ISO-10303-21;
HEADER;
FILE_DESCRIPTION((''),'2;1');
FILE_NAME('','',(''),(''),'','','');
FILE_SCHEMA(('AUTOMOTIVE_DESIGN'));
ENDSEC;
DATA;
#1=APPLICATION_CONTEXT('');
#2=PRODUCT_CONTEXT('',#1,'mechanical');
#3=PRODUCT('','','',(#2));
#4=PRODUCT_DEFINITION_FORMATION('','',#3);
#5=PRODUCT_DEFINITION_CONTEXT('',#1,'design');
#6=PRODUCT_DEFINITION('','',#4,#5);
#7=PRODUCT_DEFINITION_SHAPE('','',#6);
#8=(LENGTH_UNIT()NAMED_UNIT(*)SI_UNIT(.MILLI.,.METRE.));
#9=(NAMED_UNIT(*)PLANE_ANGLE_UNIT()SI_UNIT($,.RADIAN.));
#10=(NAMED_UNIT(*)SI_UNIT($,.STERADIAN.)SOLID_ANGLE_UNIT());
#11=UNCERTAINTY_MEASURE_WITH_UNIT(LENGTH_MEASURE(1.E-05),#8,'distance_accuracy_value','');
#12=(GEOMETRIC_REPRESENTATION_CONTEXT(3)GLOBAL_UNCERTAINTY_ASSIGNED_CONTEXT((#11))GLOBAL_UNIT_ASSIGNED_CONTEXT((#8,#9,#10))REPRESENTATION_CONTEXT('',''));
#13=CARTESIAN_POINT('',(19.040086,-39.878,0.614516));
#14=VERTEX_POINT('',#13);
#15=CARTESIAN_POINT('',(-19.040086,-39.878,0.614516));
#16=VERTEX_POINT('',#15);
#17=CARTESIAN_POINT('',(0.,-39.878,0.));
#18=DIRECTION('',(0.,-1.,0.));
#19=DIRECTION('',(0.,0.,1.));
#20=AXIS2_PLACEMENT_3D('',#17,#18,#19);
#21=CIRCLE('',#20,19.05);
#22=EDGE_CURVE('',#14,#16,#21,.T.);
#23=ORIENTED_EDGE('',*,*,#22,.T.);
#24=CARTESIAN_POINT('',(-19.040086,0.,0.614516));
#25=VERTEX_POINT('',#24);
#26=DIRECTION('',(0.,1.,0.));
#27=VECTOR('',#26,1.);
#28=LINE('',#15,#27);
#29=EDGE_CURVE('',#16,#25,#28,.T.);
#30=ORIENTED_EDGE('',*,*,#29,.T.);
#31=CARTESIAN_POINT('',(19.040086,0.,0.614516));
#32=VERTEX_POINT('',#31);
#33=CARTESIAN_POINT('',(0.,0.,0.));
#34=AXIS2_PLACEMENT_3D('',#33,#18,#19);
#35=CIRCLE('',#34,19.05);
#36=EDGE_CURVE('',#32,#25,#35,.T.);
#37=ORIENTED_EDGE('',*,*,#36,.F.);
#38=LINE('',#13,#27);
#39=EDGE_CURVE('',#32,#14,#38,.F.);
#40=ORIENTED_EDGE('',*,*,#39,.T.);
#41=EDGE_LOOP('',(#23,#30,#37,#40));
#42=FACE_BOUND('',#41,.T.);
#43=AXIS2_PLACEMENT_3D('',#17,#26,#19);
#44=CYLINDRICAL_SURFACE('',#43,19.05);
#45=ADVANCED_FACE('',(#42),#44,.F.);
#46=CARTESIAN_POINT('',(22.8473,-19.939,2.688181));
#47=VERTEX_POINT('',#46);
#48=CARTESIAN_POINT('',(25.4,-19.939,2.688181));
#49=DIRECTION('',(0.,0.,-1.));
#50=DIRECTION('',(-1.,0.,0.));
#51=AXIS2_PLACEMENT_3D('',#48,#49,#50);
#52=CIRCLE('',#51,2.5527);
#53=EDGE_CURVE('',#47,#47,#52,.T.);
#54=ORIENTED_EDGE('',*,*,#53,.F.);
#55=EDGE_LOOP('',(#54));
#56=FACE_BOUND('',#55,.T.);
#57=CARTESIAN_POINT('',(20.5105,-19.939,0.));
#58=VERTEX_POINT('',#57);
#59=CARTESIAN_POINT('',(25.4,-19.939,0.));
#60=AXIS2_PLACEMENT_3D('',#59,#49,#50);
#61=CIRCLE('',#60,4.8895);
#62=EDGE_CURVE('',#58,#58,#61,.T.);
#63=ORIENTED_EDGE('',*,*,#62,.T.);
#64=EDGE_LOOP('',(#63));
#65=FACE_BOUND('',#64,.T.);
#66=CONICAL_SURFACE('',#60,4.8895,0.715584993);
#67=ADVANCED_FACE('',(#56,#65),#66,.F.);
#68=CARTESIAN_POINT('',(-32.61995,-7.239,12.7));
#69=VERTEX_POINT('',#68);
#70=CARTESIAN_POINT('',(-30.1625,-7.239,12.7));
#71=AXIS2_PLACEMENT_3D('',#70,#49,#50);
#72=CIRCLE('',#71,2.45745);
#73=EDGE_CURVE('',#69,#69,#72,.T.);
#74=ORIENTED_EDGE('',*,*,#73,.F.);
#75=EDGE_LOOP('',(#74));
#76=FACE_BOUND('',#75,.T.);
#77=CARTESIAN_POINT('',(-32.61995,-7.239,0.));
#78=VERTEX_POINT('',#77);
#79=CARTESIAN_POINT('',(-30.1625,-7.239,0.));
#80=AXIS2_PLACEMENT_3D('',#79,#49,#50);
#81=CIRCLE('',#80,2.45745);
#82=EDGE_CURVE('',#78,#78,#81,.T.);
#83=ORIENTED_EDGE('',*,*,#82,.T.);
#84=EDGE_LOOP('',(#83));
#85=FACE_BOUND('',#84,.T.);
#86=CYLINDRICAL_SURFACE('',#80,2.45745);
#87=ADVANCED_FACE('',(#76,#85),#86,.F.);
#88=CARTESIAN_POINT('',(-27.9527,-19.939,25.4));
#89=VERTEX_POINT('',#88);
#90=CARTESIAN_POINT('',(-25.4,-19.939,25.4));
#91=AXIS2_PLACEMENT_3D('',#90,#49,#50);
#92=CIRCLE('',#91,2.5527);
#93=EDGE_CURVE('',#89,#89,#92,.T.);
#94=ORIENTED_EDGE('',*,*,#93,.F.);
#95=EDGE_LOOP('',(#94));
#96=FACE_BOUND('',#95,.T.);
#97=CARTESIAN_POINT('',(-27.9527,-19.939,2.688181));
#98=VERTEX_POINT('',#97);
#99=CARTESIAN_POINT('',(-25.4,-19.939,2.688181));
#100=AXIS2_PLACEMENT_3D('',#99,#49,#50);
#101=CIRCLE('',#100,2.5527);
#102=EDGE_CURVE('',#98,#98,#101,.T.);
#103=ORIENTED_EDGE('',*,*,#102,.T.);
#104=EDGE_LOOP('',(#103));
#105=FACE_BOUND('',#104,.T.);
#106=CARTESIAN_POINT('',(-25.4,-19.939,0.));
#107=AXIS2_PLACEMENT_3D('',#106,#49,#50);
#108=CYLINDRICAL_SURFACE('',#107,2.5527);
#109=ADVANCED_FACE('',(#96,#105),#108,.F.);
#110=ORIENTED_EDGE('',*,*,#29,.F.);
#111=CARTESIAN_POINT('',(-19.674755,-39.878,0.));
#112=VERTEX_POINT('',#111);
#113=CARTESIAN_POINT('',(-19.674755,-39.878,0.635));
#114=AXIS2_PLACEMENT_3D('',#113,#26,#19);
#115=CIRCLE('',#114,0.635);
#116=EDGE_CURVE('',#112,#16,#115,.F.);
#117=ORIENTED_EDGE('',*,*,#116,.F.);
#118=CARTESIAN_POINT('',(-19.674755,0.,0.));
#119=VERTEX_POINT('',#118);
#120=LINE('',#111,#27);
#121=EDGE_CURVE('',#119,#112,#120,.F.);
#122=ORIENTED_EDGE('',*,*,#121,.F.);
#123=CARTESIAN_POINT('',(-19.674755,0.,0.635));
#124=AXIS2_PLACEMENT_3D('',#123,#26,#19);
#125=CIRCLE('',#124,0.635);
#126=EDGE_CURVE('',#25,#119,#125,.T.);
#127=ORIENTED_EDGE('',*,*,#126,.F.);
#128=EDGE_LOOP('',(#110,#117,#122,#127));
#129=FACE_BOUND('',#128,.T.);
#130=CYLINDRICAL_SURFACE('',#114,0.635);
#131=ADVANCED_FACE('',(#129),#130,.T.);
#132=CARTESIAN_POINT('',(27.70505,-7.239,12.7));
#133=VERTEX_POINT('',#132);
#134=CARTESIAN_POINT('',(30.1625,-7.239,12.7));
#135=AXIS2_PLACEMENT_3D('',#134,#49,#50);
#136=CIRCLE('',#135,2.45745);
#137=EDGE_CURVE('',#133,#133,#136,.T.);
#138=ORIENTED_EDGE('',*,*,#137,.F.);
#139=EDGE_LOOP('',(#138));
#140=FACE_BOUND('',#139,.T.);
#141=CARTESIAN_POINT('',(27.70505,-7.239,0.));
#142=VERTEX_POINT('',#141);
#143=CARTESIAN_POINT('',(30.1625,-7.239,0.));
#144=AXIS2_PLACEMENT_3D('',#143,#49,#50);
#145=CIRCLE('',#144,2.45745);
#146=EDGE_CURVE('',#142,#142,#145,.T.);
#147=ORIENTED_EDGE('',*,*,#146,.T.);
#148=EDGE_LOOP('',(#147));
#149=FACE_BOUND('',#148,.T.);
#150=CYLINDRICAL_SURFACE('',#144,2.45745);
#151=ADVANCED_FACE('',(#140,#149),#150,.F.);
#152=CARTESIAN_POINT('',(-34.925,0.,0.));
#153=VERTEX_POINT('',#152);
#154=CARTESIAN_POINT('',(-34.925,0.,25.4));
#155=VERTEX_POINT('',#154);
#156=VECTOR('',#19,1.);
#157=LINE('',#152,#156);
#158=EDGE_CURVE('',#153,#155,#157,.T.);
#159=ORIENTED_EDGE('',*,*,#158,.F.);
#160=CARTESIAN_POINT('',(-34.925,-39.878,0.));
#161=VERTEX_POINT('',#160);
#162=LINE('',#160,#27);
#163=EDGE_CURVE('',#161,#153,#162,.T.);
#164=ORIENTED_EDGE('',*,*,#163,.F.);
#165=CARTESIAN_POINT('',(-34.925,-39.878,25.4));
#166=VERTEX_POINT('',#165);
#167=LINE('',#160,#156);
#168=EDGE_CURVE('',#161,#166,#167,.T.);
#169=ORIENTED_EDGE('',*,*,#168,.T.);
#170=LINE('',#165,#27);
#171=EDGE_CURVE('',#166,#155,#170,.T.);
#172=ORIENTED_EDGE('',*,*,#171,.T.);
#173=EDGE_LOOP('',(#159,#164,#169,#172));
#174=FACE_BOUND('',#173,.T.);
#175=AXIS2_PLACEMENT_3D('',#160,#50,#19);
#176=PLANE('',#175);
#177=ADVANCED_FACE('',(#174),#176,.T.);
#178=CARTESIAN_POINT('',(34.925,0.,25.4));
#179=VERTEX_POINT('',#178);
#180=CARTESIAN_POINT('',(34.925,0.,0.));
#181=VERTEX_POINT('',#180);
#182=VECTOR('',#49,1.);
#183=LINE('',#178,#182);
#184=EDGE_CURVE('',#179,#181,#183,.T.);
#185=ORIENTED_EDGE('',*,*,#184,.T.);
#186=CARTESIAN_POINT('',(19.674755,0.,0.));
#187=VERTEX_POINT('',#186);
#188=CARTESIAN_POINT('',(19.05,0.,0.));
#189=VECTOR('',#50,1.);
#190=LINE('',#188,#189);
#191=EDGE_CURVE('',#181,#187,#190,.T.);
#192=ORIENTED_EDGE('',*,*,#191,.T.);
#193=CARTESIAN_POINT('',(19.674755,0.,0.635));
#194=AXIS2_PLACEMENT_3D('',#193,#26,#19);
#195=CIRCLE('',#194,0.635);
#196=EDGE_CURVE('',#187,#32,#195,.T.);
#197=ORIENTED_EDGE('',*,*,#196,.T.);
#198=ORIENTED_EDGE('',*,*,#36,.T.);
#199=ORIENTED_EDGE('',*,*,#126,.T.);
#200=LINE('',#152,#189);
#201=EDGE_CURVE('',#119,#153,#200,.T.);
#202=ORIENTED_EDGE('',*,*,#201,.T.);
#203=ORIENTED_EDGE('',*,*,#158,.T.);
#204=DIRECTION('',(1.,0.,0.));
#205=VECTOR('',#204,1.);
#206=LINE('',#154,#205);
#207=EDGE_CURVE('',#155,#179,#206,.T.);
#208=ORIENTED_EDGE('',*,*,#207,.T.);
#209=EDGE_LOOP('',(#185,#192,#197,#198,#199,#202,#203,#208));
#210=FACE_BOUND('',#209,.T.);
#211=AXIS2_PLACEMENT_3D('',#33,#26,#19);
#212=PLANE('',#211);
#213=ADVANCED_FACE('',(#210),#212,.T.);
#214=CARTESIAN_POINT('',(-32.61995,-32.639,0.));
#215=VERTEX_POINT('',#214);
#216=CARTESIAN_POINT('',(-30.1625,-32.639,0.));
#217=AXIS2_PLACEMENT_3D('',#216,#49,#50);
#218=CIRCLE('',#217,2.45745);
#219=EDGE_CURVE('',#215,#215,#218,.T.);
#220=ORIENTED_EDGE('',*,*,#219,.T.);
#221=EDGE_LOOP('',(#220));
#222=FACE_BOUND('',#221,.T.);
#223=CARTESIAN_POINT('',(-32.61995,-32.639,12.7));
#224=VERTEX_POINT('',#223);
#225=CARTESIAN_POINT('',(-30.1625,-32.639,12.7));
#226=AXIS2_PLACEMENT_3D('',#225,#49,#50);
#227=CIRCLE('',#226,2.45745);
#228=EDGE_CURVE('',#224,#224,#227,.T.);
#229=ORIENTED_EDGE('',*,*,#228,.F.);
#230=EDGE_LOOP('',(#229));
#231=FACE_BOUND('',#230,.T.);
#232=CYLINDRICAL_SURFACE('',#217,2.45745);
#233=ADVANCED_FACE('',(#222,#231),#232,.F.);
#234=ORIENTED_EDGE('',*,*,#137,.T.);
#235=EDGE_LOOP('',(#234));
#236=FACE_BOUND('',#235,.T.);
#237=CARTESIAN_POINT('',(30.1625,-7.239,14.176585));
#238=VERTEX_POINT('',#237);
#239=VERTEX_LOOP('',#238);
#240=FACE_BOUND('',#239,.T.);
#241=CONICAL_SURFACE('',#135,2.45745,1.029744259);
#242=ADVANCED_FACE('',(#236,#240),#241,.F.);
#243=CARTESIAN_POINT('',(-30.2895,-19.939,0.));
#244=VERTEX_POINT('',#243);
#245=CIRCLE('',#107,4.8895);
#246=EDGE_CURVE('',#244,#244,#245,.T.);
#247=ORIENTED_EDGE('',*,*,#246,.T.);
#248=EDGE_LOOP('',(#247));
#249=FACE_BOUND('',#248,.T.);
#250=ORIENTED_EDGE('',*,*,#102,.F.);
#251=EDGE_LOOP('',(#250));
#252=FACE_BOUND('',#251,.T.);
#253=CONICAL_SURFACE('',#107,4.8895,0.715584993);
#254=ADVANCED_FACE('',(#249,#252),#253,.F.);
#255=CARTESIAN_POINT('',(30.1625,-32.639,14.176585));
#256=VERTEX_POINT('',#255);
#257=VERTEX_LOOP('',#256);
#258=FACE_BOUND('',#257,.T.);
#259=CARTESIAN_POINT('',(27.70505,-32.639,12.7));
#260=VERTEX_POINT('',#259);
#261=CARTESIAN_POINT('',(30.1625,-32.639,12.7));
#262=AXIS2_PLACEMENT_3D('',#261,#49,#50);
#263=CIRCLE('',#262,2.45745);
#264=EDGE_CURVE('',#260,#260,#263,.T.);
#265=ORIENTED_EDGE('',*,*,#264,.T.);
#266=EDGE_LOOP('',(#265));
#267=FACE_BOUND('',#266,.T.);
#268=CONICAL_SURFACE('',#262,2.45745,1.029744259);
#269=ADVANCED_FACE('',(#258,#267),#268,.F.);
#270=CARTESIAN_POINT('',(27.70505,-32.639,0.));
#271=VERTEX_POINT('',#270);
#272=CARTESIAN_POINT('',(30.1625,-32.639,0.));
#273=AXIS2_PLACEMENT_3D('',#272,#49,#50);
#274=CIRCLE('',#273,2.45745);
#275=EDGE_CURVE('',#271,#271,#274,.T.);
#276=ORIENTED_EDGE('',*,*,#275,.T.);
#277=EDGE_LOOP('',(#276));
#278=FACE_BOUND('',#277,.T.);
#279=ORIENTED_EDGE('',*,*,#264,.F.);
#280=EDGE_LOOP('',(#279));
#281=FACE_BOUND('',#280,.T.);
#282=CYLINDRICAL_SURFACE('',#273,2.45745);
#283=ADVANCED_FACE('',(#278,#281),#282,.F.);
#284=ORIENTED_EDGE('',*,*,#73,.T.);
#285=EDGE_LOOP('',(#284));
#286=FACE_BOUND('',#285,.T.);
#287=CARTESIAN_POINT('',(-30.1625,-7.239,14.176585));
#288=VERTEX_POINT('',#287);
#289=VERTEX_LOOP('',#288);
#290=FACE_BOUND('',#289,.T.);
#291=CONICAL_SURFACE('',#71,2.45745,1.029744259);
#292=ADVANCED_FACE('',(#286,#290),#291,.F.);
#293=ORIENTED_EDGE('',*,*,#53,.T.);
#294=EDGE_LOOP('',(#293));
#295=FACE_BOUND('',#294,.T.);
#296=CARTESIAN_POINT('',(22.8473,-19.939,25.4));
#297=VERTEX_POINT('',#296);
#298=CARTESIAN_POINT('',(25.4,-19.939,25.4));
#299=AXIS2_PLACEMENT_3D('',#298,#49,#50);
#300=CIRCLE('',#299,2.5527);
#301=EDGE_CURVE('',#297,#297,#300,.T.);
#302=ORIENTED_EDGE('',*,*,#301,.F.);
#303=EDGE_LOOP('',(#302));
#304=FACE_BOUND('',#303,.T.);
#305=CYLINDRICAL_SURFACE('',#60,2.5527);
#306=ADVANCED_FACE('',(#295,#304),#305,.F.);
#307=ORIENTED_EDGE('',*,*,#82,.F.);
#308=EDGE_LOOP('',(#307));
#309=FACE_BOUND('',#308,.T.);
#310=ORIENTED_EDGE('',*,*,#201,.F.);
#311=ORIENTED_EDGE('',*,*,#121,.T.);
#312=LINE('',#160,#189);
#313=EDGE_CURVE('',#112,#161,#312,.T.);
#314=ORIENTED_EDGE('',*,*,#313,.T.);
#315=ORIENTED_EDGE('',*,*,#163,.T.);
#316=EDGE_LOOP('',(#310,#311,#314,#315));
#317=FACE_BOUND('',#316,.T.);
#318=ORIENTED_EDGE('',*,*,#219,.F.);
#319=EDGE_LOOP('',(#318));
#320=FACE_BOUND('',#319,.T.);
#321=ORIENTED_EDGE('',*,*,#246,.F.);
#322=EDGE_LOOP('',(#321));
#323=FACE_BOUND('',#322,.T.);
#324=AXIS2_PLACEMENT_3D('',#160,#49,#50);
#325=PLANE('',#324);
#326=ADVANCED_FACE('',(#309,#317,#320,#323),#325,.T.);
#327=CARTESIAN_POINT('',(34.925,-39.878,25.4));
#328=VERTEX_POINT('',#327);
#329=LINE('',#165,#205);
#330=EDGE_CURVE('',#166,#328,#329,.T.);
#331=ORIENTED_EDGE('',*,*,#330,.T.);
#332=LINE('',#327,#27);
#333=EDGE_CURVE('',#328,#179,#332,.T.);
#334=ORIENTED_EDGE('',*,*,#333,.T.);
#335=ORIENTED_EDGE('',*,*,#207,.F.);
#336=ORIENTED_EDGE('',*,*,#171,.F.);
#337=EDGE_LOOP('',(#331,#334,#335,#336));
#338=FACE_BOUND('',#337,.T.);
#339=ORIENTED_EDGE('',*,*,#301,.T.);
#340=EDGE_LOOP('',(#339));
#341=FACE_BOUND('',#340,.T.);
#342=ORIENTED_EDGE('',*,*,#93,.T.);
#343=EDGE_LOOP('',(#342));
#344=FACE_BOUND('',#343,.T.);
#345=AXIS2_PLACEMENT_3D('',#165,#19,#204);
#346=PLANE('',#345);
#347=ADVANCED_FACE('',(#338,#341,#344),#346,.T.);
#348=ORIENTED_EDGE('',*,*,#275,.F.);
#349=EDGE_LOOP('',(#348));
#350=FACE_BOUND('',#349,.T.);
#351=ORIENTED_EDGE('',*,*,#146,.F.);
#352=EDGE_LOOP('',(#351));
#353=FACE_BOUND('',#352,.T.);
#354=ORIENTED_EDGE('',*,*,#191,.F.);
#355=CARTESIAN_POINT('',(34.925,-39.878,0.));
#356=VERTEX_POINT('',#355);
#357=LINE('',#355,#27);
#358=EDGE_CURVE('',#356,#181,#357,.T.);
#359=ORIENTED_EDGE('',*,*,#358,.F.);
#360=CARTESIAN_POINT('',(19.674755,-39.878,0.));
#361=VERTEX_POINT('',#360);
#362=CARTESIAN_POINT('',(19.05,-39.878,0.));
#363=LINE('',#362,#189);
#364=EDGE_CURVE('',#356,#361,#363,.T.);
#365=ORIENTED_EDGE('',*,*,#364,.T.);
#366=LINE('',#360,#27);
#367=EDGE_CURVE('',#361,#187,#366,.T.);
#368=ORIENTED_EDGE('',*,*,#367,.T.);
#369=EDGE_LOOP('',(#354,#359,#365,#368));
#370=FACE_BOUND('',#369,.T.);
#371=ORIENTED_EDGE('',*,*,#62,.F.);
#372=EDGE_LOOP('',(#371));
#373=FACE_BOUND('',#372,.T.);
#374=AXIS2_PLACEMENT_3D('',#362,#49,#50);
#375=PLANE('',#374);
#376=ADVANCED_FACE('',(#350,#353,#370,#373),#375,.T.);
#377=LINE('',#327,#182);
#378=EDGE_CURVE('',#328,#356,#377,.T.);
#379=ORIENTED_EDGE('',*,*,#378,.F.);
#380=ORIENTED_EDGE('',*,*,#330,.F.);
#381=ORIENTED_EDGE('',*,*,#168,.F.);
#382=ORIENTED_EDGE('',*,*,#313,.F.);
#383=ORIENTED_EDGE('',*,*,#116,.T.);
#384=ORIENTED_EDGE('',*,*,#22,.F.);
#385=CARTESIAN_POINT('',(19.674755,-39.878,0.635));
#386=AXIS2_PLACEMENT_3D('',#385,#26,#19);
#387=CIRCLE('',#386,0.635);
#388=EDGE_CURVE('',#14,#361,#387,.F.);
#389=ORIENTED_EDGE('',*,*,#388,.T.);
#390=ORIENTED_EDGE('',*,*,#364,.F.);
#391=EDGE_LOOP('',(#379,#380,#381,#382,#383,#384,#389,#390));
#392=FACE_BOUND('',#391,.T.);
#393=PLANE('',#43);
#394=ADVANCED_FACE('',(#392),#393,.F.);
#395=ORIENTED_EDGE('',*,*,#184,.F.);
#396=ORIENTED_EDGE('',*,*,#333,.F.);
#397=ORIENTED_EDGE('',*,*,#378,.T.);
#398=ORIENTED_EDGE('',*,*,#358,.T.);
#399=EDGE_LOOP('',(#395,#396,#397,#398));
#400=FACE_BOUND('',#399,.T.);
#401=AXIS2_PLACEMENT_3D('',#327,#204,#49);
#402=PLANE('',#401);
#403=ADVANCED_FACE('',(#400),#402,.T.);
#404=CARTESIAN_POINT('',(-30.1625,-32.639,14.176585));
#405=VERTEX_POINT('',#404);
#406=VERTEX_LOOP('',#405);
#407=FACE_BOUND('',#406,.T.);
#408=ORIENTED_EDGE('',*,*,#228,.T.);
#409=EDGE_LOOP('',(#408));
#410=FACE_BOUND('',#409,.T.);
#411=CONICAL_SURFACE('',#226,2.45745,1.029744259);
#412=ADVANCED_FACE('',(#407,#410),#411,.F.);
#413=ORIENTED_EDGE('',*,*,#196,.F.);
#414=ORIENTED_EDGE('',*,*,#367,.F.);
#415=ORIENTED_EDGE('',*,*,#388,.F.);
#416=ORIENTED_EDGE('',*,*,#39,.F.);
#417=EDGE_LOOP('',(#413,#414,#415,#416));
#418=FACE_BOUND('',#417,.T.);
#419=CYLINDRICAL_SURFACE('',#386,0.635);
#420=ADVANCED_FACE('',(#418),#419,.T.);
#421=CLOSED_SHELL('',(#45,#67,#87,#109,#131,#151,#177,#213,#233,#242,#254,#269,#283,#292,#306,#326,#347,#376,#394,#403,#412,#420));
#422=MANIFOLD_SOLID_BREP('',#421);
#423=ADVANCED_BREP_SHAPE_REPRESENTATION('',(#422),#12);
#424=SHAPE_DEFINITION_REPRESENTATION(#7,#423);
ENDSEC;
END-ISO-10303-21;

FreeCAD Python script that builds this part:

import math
import FreeCAD as App
import Part
import Sketcher

V = App.Vector
Q = App.Units.Quantity


def edges_at(feature, points):
    """Names of the edges that pass closest to the given points."""
    edges = feature.Shape.Edges
    near = lambda p: min(range(len(edges)), key=lambda i: edges[i].distToShape(Part.Vertex(*p))[0])
    return sorted({f"Edge{near(p) + 1}" for p in points})


def add_polygon(sketch, points):
    """Adds a closed chain of lines whose ends are joined by coincident constraints."""
    first, n = sketch.GeometryCount, len(points)
    for a, b in zip(points, points[1:] + points[:1]):
        sketch.addGeometry(Part.LineSegment(App.Vector(*a, 0), App.Vector(*b, 0)), False)
    for i in range(n):
        sketch.addConstraint(Sketcher.Constraint("Coincident", first + i, 2, first + (i + 1) % n, 1))

doc = App.newDocument("Part")
body = doc.addObject("PartDesign::Body", "Body")

# Sketch on XZ plane
sketch1 = doc.addObject("Sketcher::SketchObject", "Sketch")
body.addObject(sketch1)
sketch1.AttachmentSupport = (doc.XZ_Plane, [""])
sketch1.MapMode = "FlatFace"
sketch1.addGeometry(Part.LineSegment(V(-35, 0, 0), V(-35, 25, 0)), False)
sketch1.addGeometry(Part.LineSegment(V(-35, 25, 0), V(35, 25, 0)), False)
sketch1.addGeometry(Part.LineSegment(V(35, 25, 0), V(35, 0, 0)), False)
sketch1.addGeometry(Part.LineSegment(V(35, 0, 0), V(19, 0, 0)), False)
sketch1.addGeometry(Part.ArcOfCircle(Part.Circle(V(0, 0, 0), V(0, 0, 1), 19), math.radians(0), math.radians(180)), False)
sketch1.addGeometry(Part.LineSegment(V(-19, 0, 0), V(-35, 0, 0)), False)
sketch1.addConstraint(Sketcher.Constraint("Coincident", 0, 2, 1, 1))
sketch1.addConstraint(Sketcher.Constraint("Coincident", 1, 2, 2, 1))
sketch1.addConstraint(Sketcher.Constraint("Coincident", 2, 2, 3, 1))
sketch1.addConstraint(Sketcher.Constraint("Coincident", 3, 2, 4, 1))
sketch1.addConstraint(Sketcher.Constraint("Coincident", 4, 2, 5, 1))
sketch1.addConstraint(Sketcher.Constraint("Coincident", 5, 2, 0, 1))
sketch1.addConstraint(Sketcher.Constraint("Vertical", 0))
sketch1.addConstraint(Sketcher.Constraint("Horizontal", 1))
sketch1.addConstraint(Sketcher.Constraint("Vertical", 2))
sketch1.addConstraint(Sketcher.Constraint("Horizontal", 3))
sketch1.addConstraint(Sketcher.Constraint("Horizontal", 5))
sketch1.addConstraint(Sketcher.Constraint("Coincident", 4, 3, -1, 1))
sketch1.addConstraint(Sketcher.Constraint("Symmetric", 2, 2, 5, 2, -1, 1))
sketch1.addConstraint(Sketcher.Constraint("PointOnObject", 2, 2, -1))
sketch1.addConstraint(Sketcher.Constraint("DistanceY", 0, 1, 0, 2, Q("1 in")))
sketch1.addConstraint(Sketcher.Constraint("Radius", 4, Q("0.75 in")))
sketch1.addConstraint(Sketcher.Constraint("DistanceX", 1, 1, 1, 2, Q("2.75 in")))
pad1 = doc.addObject("PartDesign::Pad", "Pad")
body.addObject(pad1)
pad1.Profile = sketch1
pad1.Length = Q("1.57 in")
doc.recompute()

fillet = doc.addObject("PartDesign::Fillet", "Fillet")
body.addObject(fillet)
fillet.Base = (pad1, edges_at(pad1, [(-19.05, -19.939, 0), (19.05, -19.939, 0)]))
fillet.Radius = Q("0.025 in")

# Sketch on XY plane
sketch2 = doc.addObject("Sketcher::SketchObject", "Sketch001")
body.addObject(sketch2)
sketch2.AttachmentSupport = (doc.XY_Plane, [""])
sketch2.MapMode = "FlatFace"
sketch2.addGeometry(Part.Circle(V(25.4, -19.9, 0), V(0, 0, 1), 2.6), False)
sketch2.addConstraint(Sketcher.Constraint("Diameter", 0, Q("0.201 in")))
sketch2.addConstraint(Sketcher.Constraint("DistanceX", -1, 1, 0, 3, Q("1 in")))
sketch2.addConstraint(Sketcher.Constraint("DistanceY", 0, 3, -1, 1, Q("0.785 in")))
doc.recompute()
hole = doc.addObject("PartDesign::Hole", "Hole")
body.addObject(hole)
hole.Profile = sketch2
hole.ThreadType = "None"
hole.Diameter = Q("0.201 in")
hole.DepthType = "ThroughAll"
hole.HoleCutType = "Countersink"
hole.HoleCutDiameter = Q("0.385 in")
hole.HoleCutCountersinkAngle = 82
hole.Reversed = True

# Sketch on YZ plane
sketch3 = doc.addObject("Sketcher::SketchObject", "Sketch002")
body.addObject(sketch3)
sketch3.AttachmentSupport = (doc.YZ_Plane, [""])
sketch3.MapMode = "FlatFace"
sketch3.AttachmentOffset = App.Placement(V(0, 0, 1.1875 * 25.4), App.Rotation())
add_polygon(sketch3, [(-7.2, 14.2), (-7.2, 0), (-4.8, 0), (-4.8, 12.7)])  # lines 0-3
sketch3.addGeometry(Part.LineSegment(V(-7.2, 0, 0), V(-7.2, 14.2, 0)), True)  # axis
sketch3.addConstraint(Sketcher.Constraint("Vertical", 0))
sketch3.addConstraint(Sketcher.Constraint("Horizontal", 1))
sketch3.addConstraint(Sketcher.Constraint("Vertical", 2))
sketch3.addConstraint(Sketcher.Constraint("Vertical", 4))
sketch3.addConstraint(Sketcher.Constraint("Coincident", 4, 1, 0, 2))
sketch3.addConstraint(Sketcher.Constraint("PointOnObject", 0, 2, -1))
sketch3.addConstraint(Sketcher.Constraint("Equal", 0, 4))
sketch3.addConstraint(Sketcher.Constraint("DistanceY", 2, 1, 2, 2, Q("0.5 in")))
sketch3.addConstraint(Sketcher.Constraint("Angle", 3, Q("149 deg")))
sketch3.addConstraint(Sketcher.Constraint("DistanceX", 0, 2, -1, 1, Q("0.285 in")))
sketch3.addConstraint(Sketcher.Constraint("DistanceX", 1, 1, 1, 2, 2.45745))
groove = doc.addObject("PartDesign::Groove", "Groove")
body.addObject(groove)
groove.Profile = sketch3
groove.ReferenceAxis = (sketch3, ["Axis0"])
groove.Angle = 360
doc.recompute()

linearpattern = doc.addObject("PartDesign::LinearPattern", "LinearPattern")
body.addObject(linearpattern)
linearpattern.Originals = [groove]
linearpattern.Direction = (doc.Y_Axis, [""])
linearpattern.Mode = "offset"
linearpattern.Offset = Q("1 in")
linearpattern.Occurrences = 2
linearpattern.Reversed = True
body.Tip = linearpattern
doc.recompute()

mirrored = doc.addObject("PartDesign::Mirrored", "Mirrored")
body.addObject(mirrored)
mirrored.Originals = [groove, hole]
mirrored.MirrorPlane = (doc.YZ_Plane, [""])
body.Tip = mirrored

# Sketch on YZ plane
sketch4 = doc.addObject("Sketcher::SketchObject", "Sketch003")
body.addObject(sketch4)
sketch4.AttachmentSupport = (doc.YZ_Plane, [""])
sketch4.MapMode = "FlatFace"
sketch4.AttachmentOffset = App.Placement(V(0, 0, -1.1875 * 25.4), App.Rotation())
add_polygon(sketch4, [(-32.6, 0), (-32.6, 14.2), (-30.2, 12.7), (-30.2, 0)])  # lines 0-3
sketch4.addGeometry(Part.LineSegment(V(-32.6, 14.2, 0), V(-32.6, 0, 0)), True)  # axis
sketch4.addConstraint(Sketcher.Constraint("Vertical", 0))
sketch4.addConstraint(Sketcher.Constraint("Vertical", 2))
sketch4.addConstraint(Sketcher.Constraint("Horizontal", 3))
sketch4.addConstraint(Sketcher.Constraint("Vertical", 4))
sketch4.addConstraint(Sketcher.Constraint("Coincident", 4, 1, 0, 2))
sketch4.addConstraint(Sketcher.Constraint("PointOnObject", 2, 2, -1))
sketch4.addConstraint(Sketcher.Constraint("PointOnObject", 4, 2, -1))
sketch4.addConstraint(Sketcher.Constraint("DistanceY", 2, 2, 2, 1, Q("0.5 in")))
sketch4.addConstraint(Sketcher.Constraint("Angle", 1, Q("-31 deg")))
sketch4.addConstraint(Sketcher.Constraint("DistanceX", 0, 2, -1, 1, Q("1.285 in")))
sketch4.addConstraint(Sketcher.Constraint("DistanceX", 3, 2, 3, 1, 2.45745))
groove2 = doc.addObject("PartDesign::Groove", "Groove001")
body.addObject(groove2)
groove2.Profile = sketch4
groove2.ReferenceAxis = (sketch4, ["Axis0"])
groove2.Angle = 360

doc.recompute()
